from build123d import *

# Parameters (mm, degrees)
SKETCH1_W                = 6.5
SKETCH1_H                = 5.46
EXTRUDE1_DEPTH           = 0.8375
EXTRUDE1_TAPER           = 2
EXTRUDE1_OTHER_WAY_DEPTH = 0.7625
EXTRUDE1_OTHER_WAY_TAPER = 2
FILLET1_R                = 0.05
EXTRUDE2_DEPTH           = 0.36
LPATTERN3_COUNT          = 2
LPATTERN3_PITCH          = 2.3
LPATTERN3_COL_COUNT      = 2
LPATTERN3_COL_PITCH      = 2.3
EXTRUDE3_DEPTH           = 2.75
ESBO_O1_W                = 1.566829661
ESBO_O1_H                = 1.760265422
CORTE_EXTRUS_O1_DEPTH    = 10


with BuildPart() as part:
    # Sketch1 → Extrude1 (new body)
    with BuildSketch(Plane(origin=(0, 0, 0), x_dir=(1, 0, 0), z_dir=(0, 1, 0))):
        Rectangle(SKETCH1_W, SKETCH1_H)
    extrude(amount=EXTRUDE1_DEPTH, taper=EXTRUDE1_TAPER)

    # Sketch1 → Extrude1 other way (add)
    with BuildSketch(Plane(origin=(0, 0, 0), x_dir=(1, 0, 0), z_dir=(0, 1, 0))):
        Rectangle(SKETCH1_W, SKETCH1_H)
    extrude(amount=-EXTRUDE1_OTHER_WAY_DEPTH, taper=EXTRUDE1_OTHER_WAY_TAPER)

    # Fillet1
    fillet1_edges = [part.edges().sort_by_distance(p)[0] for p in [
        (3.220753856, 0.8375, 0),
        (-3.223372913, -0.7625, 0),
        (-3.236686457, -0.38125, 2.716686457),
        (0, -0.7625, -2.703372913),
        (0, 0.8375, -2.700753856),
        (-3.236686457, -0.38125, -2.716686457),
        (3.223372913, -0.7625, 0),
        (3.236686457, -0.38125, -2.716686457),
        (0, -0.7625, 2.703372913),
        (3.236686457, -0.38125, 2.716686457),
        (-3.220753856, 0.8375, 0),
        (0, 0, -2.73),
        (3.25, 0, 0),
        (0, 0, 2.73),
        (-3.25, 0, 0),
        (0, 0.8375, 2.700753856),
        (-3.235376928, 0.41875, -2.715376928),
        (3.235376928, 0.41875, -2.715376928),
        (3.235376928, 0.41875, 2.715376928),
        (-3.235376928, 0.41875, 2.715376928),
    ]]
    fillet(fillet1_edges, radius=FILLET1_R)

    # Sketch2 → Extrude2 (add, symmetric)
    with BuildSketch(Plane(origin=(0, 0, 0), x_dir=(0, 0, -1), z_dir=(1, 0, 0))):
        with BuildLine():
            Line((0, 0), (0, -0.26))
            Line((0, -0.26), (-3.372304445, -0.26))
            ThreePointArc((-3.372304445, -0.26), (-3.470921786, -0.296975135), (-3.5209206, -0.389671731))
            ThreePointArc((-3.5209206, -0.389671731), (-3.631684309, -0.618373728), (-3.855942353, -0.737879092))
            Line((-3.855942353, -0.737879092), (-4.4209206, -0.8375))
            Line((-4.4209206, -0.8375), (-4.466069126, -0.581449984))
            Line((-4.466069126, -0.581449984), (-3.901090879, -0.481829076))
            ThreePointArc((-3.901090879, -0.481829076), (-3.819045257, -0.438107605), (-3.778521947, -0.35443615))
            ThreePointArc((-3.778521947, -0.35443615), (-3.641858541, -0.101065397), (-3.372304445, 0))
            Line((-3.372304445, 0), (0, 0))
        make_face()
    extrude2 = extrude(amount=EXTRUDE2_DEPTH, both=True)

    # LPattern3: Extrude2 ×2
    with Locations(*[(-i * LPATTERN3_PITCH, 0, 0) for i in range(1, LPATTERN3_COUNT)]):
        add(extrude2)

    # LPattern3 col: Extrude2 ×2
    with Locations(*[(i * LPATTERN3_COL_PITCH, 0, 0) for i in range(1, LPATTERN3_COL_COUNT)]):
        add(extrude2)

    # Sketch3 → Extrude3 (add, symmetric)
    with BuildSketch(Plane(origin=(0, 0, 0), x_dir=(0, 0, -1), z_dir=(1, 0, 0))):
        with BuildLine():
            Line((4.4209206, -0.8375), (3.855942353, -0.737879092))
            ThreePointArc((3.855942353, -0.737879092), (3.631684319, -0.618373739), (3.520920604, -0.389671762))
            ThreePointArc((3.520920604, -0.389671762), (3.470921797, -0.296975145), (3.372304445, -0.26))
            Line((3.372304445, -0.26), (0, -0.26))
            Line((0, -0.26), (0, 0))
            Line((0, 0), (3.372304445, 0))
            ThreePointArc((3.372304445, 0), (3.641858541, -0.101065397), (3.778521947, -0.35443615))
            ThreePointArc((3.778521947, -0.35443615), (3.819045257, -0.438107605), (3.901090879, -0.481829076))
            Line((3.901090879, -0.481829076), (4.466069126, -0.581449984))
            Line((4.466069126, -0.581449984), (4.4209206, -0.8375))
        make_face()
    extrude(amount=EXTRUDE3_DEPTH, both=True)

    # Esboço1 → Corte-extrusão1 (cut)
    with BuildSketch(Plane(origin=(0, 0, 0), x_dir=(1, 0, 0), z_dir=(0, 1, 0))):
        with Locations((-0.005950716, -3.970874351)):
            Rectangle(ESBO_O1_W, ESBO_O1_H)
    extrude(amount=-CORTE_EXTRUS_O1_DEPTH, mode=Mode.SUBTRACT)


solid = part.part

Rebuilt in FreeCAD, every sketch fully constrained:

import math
import FreeCAD as App
import Part
import Sketcher
from FreeCAD import Vector
Q = App.Units.Quantity


def add_polygon(sketch, points):
    """Adds a closed chain of lines whose ends are joined by coincident constraints."""
    first, n = sketch.GeometryCount, len(points)
    for a, b in zip(points, points[1:] + points[:1]):
        sketch.addGeometry(Part.LineSegment(App.Vector(*a, 0), App.Vector(*b, 0)), False)
    for i in range(n):
        sketch.addConstraint(Sketcher.Constraint("Coincident", first + i, 2, first + (i + 1) % n, 1))

doc = App.newDocument("Part")
body = doc.addObject("PartDesign::Body", "Body")

# Sketch on XZ plane
sketch1 = body.newObject("Sketcher::SketchObject", "Sketch")
sketch1.AttachmentSupport = (doc.getObject("XZ_Plane"), [""])
sketch1.MapMode = "FlatFace"
add_polygon(sketch1, [(-3, -3), (-3, 3), (3, 3), (3, -3)])  # lines 0-3
sketch1.addConstraint([
    Sketcher.Constraint("Vertical", 0),
    Sketcher.Constraint("Horizontal", 1),
    Sketcher.Constraint("Vertical", 2),
    Sketcher.Constraint("Horizontal", 3),
    Sketcher.Constraint("Symmetric", 0, 2, 2, 2, -1, 1),
    Sketcher.Constraint("DistanceX", 1, 1, 1, 2, 6.5),
    Sketcher.Constraint("DistanceY", 0, 1, 0, 2, 5.46),
])
pad1 = body.newObject("PartDesign::Pad", "Pad")
pad1.Profile = sketch1
pad1.Length = 0.8375
pad1.Reversed = True
pad1.TaperAngle = -2

# Sketch on XZ plane
sketch2 = body.newObject("Sketcher::SketchObject", "Sketch001")
sketch2.AttachmentSupport = (doc.getObject("XZ_Plane"), [""])
sketch2.MapMode = "FlatFace"
add_polygon(sketch2, [(-3, -3), (-3, 3), (3, 3), (3, -3)])  # lines 0-3
sketch2.addConstraint([
    Sketcher.Constraint("Vertical", 0),
    Sketcher.Constraint("Horizontal", 1),
    Sketcher.Constraint("Vertical", 2),
    Sketcher.Constraint("Horizontal", 3),
    Sketcher.Constraint("Symmetric", 0, 2, 2, 2, -1, 1),
    Sketcher.Constraint("DistanceX", 1, 1, 1, 2, 6.5),
    Sketcher.Constraint("DistanceY", 0, 1, 0, 2, 5.46),
])
pad2 = body.newObject("PartDesign::Pad", "Pad001")
pad2.Profile = sketch2
pad2.Length = 0.7625
pad2.TaperAngle = -2
doc.recompute()

fillet = body.newObject("PartDesign::Fillet", "Fillet")
fillet.Base = (pad2, ["Edge1"])
fillet.UseAllEdges = True
fillet.Radius = 0.05

# Sketch on YZ plane
sketch3 = body.newObject("Sketcher::SketchObject", "Sketch002")
sketch3.AttachmentSupport = (doc.getObject("YZ_Plane"), [""])
sketch3.MapMode = "FlatFace"
sketch3.addGeometry([
    Part.LineSegment(Vector(-0.26, 0, 0), Vector(0, 0, 0)),  # 0
    Part.LineSegment(Vector(0, 0, 0), Vector(0, 3.37, 0)),  # 1
    Part.ArcOfCircle(Part.Circle(Vector(-0.41, 3.37, 0), Vector(0, 0, 1), 0.41), math.radians(0), math.radians(82)),  # 2
    Part.ArcOfCircle(Part.Circle(Vector(-0.33, 3.93, 0), Vector(0, 0, 1), 0.15), math.radians(-170), math.radians(-98)),  # 3
    Part.LineSegment(Vector(-0.48, 3.9, 0), Vector(-0.58, 4.47, 0)),  # 4
    Part.LineSegment(Vector(-0.58, 4.47, 0), Vector(-0.84, 4.42, 0)),  # 5
    Part.LineSegment(Vector(-0.84, 4.42, 0), Vector(-0.74, 3.86, 0)),  # 6
    Part.ArcOfCircle(Part.Circle(Vector(-0.33, 3.93, 0), Vector(0, 0, 1), 0.41), math.radians(-170), math.radians(-98)),  # 7
    Part.ArcOfCircle(Part.Circle(Vector(-0.41, 3.37, 0), Vector(0, 0, 1), 0.15), math.radians(0), math.radians(82)),  # 8
    Part.LineSegment(Vector(-0.26, 3.37, 0), Vector(-0.26, 0, 0)),  # 9
], False)
sketch3.addConstraint([
    Sketcher.Constraint("Coincident", 0, 2, 1, 1),
    Sketcher.Constraint("Tangent", 1, 2, 2, 1),
    Sketcher.Constraint("Tangent", 2, 2, 3, 2),
    Sketcher.Constraint("Tangent", 3, 1, 4, 1),
    Sketcher.Constraint("Coincident", 4, 2, 5, 1),
    Sketcher.Constraint("Coincident", 5, 2, 6, 1),
    Sketcher.Constraint("Tangent", 6, 2, 7, 1),
    Sketcher.Constraint("Tangent", 7, 2, 8, 2),
    Sketcher.Constraint("Tangent", 8, 1, 9, 1),
    Sketcher.Constraint("Coincident", 9, 2, 0, 1),
    Sketcher.Constraint("Horizontal", 0),
    Sketcher.Constraint("Vertical", 1),
    Sketcher.Constraint("Vertical", 9),
    Sketcher.Constraint("Coincident", 0, 2, -1, 1),
    Sketcher.Constraint("Coincident", 7, 3, 3, 3),
    Sketcher.Constraint("Coincident", 8, 3, 2, 3),
    Sketcher.Constraint("Equal", 2, 7),
    Sketcher.Constraint("Perpendicular", 4, 5),
    Sketcher.Constraint("Perpendicular", 5, 6),
    Sketcher.Constraint("Angle", 4, Q("100 deg")),
    Sketcher.Constraint("Radius", 2, 0.41),
    Sketcher.Constraint("Radius", 3, 0.15),
    Sketcher.Constraint("DistanceX", 5, 2, -1, 1, 0.8375),
    Sketcher.Constraint("DistanceY", 2, 2, 5, 2, 0.642399),
    Sketcher.Constraint("DistanceY", 1, 1, 1, 2, 3.372304),
])
pad3 = body.newObject("PartDesign::Pad", "Pad002")
pad3.Profile = sketch3
pad3.Length = 0.72
pad3.Midplane = True
doc.recompute()

linearpattern = body.newObject("PartDesign::LinearPattern", "LinearPattern")
linearpattern.Originals = [pad3]
linearpattern.Direction = (doc.getObject("X_Axis"), [""])
linearpattern.Mode = "offset"
linearpattern.Offset = 2.3
linearpattern.Occurrences = 2
linearpattern.Reversed = True
body.Tip = linearpattern
doc.recompute()

linearpattern2 = body.newObject("PartDesign::LinearPattern", "LinearPattern001")
linearpattern2.Originals = [pad3]
linearpattern2.Direction = (doc.getObject("X_Axis"), [""])
linearpattern2.Mode = "offset"
linearpattern2.Offset = 2.3
linearpattern2.Occurrences = 2
body.Tip = linearpattern2

# Sketch on YZ plane
sketch4 = body.newObject("Sketcher::SketchObject", "Sketch003")
sketch4.AttachmentSupport = (doc.getObject("YZ_Plane"), [""])
sketch4.MapMode = "FlatFace"
sketch4.addGeometry([
    Part.LineSegment(Vector(-0.737879, -3.855942, 0), Vector(-0.8375, -4.420921, 0)),  # 0
    Part.LineSegment(Vector(-0.8375, -4.420921, 0), Vector(-0.58145, -4.466069, 0)),  # 1
    Part.LineSegment(Vector(-0.58145, -4.466069, 0), Vector(-0.481829, -3.901091, 0)),  # 2
    Part.ArcOfCircle(Part.Circle(Vector(-0.334108, -3.927138, 0), Vector(0, 0, 1), 0.15), math.radians(97.788781), math.radians(169.999999)),  # 3
    Part.ArcOfCircle(Part.Circle(Vector(-0.41, -3.372304, 0), Vector(0, 0, 1), 0.41), math.radians(-82.211218), math.radians(0)),  # 4
    Part.LineSegment(Vector(0, -3.372304, 0), Vector(0, 0, 0)),  # 5
    Part.LineSegment(Vector(0, 0, 0), Vector(-0.26, 0, 0)),  # 6
    Part.LineSegment(Vector(-0.26, 0, 0), Vector(-0.26, -3.372304, 0)),  # 7
    Part.ArcOfCircle(Part.Circle(Vector(-0.41, -3.372304, 0), Vector(0, 0, 1), 0.15), math.radians(-82.211218), math.radians(0)),  # 8
    Part.ArcOfCircle(Part.Circle(Vector(-0.334108, -3.927138, 0), Vector(0, 0, 1), 0.41), math.radians(97.788782), math.radians(170)),  # 9
], False)
sketch4.addConstraint([
    Sketcher.Constraint("Coincident", 0, 2, 1, 1),
    Sketcher.Constraint("Coincident", 1, 2, 2, 1),
    Sketcher.Constraint("Coincident", 2, 2, 3, 2),
    Sketcher.Constraint("Coincident", 3, 1, 4, 1),
    Sketcher.Constraint("Coincident", 4, 2, 5, 1),
    Sketcher.Constraint("Coincident", 5, 2, 6, 1),
    Sketcher.Constraint("Coincident", 6, 2, 7, 1),
    Sketcher.Constraint("Coincident", 7, 2, 8, 2),
    Sketcher.Constraint("Coincident", 8, 1, 9, 1),
    Sketcher.Constraint("Coincident", 9, 2, 0, 1),
    Sketcher.Constraint("Vertical", 5),
    Sketcher.Constraint("Horizontal", 6),
    Sketcher.Constraint("Vertical", 7),
    Sketcher.Constraint("Coincident", 5, 2, -1, 1),
    Sketcher.Constraint("Coincident", 8, 3, 4, 3),
    Sketcher.Constraint("Coincident", 9, 3, 3, 3),
    Sketcher.Constraint("Radius", 3, 0.15),
    Sketcher.Constraint("Radius", 4, 0.41),
    Sketcher.Constraint("Radius", 8, 0.15),
    Sketcher.Constraint("Distance", 1, 0.26),
    Sketcher.Constraint("DistanceX", 0, 2, -1, 1, 0.8375),
    Sketcher.Constraint("DistanceY", 3, 1, 8, 1, 0.257601),
    Sketcher.Constraint("DistanceY", 5, 1, 5, 2, 3.372304),
    Sketcher.Constraint("DistanceY", 7, 2, 7, 1, 3.372304),
    Sketcher.Constraint("DistanceY", 3, 3, -1, 1, 3.927138),
    Sketcher.Constraint("DistanceY", 0, 2, -1, 1, 4.420921),
    Sketcher.Constraint("DistanceX", 1, 2, -1, 1, 0.58145),
    Sketcher.Constraint("DistanceX", 2, 2, -1, 1, 0.481829),
    Sketcher.Constraint("DistanceY", 2, 2, -1, 1, 3.901091),
    Sketcher.Constraint("DistanceY", 3, 1, -1, 1, 3.778522),
    Sketcher.Constraint("DistanceX", 9, 2, -1, 1, 0.737879),
])
pad4 = body.newObject("PartDesign::Pad", "Pad003")
pad4.Profile = sketch4
pad4.Length = 5.5
pad4.Midplane = True

# Sketch on XZ plane
sketch5 = body.newObject("Sketcher::SketchObject", "Sketch004")
sketch5.AttachmentSupport = (doc.getObject("XZ_Plane"), [""])
sketch5.MapMode = "FlatFace"
add_polygon(sketch5, [(-0.8, 3.1), (-0.8, 4.9), (0.8, 4.9), (0.8, 3.1)])  # lines 0-3
sketch5.addConstraint([
    Sketcher.Constraint("Vertical", 0),
    Sketcher.Constraint("Horizontal", 1),
    Sketcher.Constraint("Vertical", 2),
    Sketcher.Constraint("Horizontal", 3),
    Sketcher.Constraint("DistanceX", 1, 1, 1, 2, 1.56683),
    Sketcher.Constraint("DistanceY", 0, 1, 0, 2, 1.760265),
    Sketcher.Constraint("DistanceY", -1, 1, 2, 2, 3.090742),
    Sketcher.Constraint("DistanceX", 0, 2, -1, 1, 0.789366),
])
pocket1 = body.newObject("PartDesign::Pocket", "Pocket")
pocket1.Profile = sketch5
pocket1.Length = 10
pocket1.Reversed = True

doc.recompute()
